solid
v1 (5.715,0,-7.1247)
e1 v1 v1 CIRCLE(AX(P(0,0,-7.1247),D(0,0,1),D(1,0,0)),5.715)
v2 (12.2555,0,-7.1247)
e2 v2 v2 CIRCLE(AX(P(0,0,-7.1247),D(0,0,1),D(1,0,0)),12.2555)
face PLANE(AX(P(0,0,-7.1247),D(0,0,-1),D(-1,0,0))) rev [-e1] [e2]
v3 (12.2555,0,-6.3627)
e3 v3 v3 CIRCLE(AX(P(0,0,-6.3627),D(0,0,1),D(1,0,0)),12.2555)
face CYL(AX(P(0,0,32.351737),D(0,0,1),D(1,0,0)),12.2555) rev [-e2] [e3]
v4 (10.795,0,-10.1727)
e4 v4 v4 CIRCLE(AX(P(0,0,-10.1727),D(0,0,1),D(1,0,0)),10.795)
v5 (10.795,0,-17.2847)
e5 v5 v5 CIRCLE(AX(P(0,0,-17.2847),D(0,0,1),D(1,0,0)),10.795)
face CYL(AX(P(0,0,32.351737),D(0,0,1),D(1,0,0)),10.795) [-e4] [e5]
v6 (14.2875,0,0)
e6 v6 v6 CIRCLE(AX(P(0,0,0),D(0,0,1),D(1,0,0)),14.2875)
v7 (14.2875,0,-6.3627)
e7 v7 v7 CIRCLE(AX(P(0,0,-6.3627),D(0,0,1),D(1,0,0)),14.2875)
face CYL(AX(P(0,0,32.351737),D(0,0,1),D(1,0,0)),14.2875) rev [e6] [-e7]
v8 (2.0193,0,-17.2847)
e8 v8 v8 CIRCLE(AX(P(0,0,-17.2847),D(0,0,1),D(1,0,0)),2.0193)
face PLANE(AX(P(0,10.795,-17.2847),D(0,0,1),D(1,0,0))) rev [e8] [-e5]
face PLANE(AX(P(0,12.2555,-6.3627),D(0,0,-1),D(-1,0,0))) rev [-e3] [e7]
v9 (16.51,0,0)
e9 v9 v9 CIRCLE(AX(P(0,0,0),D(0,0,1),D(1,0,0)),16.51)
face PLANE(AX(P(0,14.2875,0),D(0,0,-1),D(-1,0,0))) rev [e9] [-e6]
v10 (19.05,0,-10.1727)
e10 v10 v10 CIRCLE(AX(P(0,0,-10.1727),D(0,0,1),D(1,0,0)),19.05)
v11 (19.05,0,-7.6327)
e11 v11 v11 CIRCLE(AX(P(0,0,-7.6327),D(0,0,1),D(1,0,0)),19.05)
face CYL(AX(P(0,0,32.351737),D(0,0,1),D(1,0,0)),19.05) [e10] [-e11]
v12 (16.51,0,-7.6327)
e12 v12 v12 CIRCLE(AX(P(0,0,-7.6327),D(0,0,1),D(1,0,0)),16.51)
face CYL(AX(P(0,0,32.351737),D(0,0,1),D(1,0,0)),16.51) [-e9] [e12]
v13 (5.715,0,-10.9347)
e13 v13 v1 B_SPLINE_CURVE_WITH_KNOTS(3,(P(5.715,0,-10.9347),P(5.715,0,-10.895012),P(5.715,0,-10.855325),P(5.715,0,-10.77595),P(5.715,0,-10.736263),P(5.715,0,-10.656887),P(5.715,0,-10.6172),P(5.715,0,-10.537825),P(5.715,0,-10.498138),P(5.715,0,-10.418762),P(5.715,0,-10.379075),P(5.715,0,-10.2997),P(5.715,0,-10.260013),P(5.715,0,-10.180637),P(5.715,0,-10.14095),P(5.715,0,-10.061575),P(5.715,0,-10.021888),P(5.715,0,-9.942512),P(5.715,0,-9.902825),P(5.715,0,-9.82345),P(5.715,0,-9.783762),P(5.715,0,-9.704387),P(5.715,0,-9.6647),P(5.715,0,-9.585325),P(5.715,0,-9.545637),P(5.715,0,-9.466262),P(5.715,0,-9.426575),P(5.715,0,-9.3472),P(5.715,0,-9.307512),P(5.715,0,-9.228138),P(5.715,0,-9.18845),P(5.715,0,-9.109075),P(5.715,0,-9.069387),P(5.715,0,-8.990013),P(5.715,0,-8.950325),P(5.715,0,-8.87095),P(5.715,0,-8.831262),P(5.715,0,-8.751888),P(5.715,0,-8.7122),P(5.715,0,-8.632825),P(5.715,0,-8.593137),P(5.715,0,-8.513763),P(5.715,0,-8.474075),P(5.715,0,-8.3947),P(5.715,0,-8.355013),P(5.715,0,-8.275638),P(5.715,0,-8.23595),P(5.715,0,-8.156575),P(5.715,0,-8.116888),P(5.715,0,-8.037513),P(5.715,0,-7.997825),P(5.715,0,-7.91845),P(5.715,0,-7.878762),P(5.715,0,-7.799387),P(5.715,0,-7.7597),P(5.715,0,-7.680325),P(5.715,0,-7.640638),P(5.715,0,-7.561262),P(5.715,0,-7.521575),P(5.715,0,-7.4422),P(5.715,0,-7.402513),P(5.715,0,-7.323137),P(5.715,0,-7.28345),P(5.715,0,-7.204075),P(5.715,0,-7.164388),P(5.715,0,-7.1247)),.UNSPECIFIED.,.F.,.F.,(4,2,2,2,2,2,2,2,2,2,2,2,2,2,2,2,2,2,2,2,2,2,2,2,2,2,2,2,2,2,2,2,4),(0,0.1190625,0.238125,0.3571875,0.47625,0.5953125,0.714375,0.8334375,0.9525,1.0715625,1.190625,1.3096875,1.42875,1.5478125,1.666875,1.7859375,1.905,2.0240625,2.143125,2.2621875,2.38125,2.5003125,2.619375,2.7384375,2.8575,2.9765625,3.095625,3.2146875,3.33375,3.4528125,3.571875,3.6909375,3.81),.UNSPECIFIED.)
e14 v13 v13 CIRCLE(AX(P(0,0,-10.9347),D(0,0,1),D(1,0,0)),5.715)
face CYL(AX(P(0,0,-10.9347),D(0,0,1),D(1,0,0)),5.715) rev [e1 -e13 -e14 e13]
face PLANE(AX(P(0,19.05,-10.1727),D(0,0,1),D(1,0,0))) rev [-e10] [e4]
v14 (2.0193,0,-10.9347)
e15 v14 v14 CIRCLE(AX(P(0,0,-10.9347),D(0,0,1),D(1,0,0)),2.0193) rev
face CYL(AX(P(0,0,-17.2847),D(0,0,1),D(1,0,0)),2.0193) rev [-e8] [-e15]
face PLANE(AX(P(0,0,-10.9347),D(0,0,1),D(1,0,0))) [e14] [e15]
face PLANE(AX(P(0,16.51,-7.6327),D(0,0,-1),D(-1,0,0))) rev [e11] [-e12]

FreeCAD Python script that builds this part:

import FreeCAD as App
import Part
import Sketcher
from FreeCAD import Vector
Q = App.Units.Quantity


def add_polygon(sketch, points):
    """Adds a closed chain of lines whose ends are joined by coincident constraints."""
    first, n = sketch.GeometryCount, len(points)
    for a, b in zip(points, points[1:] + points[:1]):
        sketch.addGeometry(Part.LineSegment(App.Vector(*a, 0), App.Vector(*b, 0)), False)
    for i in range(n):
        sketch.addConstraint(Sketcher.Constraint("Coincident", first + i, 2, first + (i + 1) % n, 1))

doc = App.newDocument("Part")
body = doc.addObject("PartDesign::Body", "Body")

# Sketch on YZ plane
sketch1 = body.newObject("Sketcher::SketchObject", "Sketch")
sketch1.AttachmentSupport = (doc.getObject("YZ_Plane"), [""])
sketch1.MapMode = "FlatFace"
add_polygon(sketch1, [(0, -7.1), (0, -17.3), (10.8, -17.3), (10.8, -10.2), (19.1, -10.2), (19.1, -7.6), (16.5, -7.6), (16.5, 0), (14.3, 0), (14.3, -6.4), (12.3, -6.4), (12.3, -7.1)])  # lines 0-11
sketch1.addConstraint([
    Sketcher.Constraint("Vertical", 0),
    Sketcher.Constraint("Horizontal", 1),
    Sketcher.Constraint("Vertical", 2),
    Sketcher.Constraint("Horizontal", 3),
    Sketcher.Constraint("Vertical", 4),
    Sketcher.Constraint("Horizontal", 5),
    Sketcher.Constraint("Vertical", 6),
    Sketcher.Constraint("Horizontal", 7),
    Sketcher.Constraint("Vertical", 8),
    Sketcher.Constraint("Horizontal", 9),
    Sketcher.Constraint("Vertical", 10),
    Sketcher.Constraint("Horizontal", 11),
    Sketcher.Constraint("PointOnObject", 0, 2, -2),
    Sketcher.Constraint("PointOnObject", 6, 2, -1),
    Sketcher.Constraint("Equal", 5, 4),
    Sketcher.Constraint("DistanceX", 5, 2, 5, 1, Q("0.1 in")),
    Sketcher.Constraint("DistanceY", 0, 2, 0, 1, Q("0.4 in")),
    Sketcher.Constraint("DistanceX", 9, 2, 9, 1, Q("0.08 in")),
    Sketcher.Constraint("DistanceY", 2, 1, 2, 2, Q("0.28 in")),
    Sketcher.Constraint("DistanceY", 10, 2, 10, 1, Q("0.03 in")),
    Sketcher.Constraint("DistanceX", 1, 1, 1, 2, Q("0.425 in")),
    Sketcher.Constraint("DistanceX", 3, 1, 3, 2, Q("0.325 in")),
    Sketcher.Constraint("DistanceX", 7, 2, 7, 1, Q("0.0875 in")),
    Sketcher.Constraint("DistanceY", 6, 1, 6, 2, Q("0.3005 in")),
])
revolution = body.newObject("PartDesign::Revolution", "Revolution")
revolution.Profile = sketch1
revolution.ReferenceAxis = (sketch1, ["V_Axis"])
revolution.Angle = 360

# Sketch on XY plane
sketch2 = body.newObject("Sketcher::SketchObject", "Sketch001")
sketch2.AttachmentSupport = (doc.getObject("XY_Plane"), [""])
sketch2.MapMode = "FlatFace"
sketch2.AttachmentOffset = App.Placement(Vector(0, 0, -0.2805 * 25.4), App.Rotation())
sketch2.addGeometry(Part.Circle(Vector(0, 0, 0), Vector(0, 0, 1), 2), False)
sketch2.addConstraint([
    Sketcher.Constraint("Coincident", 0, 3, -1, 1),
    Sketcher.Constraint("Diameter", 0, Q("0.159 in")),
])
pocket1 = body.newObject("PartDesign::Pocket", "Pocket")
pocket1.Profile = sketch2
pocket1.Type = "ThroughAll"

# Sketch on XY plane
sketch3 = body.newObject("Sketcher::SketchObject", "Sketch002")
sketch3.AttachmentSupport = (doc.getObject("XY_Plane"), [""])
sketch3.MapMode = "FlatFace"
sketch3.AttachmentOffset = App.Placement(Vector(0, 0, -0.2805 * 25.4), App.Rotation())
sketch3.addGeometry(Part.Circle(Vector(0, 0, 0), Vector(0, 0, 1), 6), False)
sketch3.addConstraint([
    Sketcher.Constraint("Coincident", 0, 3, -1, 1),
    Sketcher.Constraint("Diameter", 0, Q("0.45 in")),
])
pocket2 = body.newObject("PartDesign::Pocket", "Pocket001")
pocket2.Profile = sketch3
pocket2.Length = Q("0.15 in")

doc.recompute()
